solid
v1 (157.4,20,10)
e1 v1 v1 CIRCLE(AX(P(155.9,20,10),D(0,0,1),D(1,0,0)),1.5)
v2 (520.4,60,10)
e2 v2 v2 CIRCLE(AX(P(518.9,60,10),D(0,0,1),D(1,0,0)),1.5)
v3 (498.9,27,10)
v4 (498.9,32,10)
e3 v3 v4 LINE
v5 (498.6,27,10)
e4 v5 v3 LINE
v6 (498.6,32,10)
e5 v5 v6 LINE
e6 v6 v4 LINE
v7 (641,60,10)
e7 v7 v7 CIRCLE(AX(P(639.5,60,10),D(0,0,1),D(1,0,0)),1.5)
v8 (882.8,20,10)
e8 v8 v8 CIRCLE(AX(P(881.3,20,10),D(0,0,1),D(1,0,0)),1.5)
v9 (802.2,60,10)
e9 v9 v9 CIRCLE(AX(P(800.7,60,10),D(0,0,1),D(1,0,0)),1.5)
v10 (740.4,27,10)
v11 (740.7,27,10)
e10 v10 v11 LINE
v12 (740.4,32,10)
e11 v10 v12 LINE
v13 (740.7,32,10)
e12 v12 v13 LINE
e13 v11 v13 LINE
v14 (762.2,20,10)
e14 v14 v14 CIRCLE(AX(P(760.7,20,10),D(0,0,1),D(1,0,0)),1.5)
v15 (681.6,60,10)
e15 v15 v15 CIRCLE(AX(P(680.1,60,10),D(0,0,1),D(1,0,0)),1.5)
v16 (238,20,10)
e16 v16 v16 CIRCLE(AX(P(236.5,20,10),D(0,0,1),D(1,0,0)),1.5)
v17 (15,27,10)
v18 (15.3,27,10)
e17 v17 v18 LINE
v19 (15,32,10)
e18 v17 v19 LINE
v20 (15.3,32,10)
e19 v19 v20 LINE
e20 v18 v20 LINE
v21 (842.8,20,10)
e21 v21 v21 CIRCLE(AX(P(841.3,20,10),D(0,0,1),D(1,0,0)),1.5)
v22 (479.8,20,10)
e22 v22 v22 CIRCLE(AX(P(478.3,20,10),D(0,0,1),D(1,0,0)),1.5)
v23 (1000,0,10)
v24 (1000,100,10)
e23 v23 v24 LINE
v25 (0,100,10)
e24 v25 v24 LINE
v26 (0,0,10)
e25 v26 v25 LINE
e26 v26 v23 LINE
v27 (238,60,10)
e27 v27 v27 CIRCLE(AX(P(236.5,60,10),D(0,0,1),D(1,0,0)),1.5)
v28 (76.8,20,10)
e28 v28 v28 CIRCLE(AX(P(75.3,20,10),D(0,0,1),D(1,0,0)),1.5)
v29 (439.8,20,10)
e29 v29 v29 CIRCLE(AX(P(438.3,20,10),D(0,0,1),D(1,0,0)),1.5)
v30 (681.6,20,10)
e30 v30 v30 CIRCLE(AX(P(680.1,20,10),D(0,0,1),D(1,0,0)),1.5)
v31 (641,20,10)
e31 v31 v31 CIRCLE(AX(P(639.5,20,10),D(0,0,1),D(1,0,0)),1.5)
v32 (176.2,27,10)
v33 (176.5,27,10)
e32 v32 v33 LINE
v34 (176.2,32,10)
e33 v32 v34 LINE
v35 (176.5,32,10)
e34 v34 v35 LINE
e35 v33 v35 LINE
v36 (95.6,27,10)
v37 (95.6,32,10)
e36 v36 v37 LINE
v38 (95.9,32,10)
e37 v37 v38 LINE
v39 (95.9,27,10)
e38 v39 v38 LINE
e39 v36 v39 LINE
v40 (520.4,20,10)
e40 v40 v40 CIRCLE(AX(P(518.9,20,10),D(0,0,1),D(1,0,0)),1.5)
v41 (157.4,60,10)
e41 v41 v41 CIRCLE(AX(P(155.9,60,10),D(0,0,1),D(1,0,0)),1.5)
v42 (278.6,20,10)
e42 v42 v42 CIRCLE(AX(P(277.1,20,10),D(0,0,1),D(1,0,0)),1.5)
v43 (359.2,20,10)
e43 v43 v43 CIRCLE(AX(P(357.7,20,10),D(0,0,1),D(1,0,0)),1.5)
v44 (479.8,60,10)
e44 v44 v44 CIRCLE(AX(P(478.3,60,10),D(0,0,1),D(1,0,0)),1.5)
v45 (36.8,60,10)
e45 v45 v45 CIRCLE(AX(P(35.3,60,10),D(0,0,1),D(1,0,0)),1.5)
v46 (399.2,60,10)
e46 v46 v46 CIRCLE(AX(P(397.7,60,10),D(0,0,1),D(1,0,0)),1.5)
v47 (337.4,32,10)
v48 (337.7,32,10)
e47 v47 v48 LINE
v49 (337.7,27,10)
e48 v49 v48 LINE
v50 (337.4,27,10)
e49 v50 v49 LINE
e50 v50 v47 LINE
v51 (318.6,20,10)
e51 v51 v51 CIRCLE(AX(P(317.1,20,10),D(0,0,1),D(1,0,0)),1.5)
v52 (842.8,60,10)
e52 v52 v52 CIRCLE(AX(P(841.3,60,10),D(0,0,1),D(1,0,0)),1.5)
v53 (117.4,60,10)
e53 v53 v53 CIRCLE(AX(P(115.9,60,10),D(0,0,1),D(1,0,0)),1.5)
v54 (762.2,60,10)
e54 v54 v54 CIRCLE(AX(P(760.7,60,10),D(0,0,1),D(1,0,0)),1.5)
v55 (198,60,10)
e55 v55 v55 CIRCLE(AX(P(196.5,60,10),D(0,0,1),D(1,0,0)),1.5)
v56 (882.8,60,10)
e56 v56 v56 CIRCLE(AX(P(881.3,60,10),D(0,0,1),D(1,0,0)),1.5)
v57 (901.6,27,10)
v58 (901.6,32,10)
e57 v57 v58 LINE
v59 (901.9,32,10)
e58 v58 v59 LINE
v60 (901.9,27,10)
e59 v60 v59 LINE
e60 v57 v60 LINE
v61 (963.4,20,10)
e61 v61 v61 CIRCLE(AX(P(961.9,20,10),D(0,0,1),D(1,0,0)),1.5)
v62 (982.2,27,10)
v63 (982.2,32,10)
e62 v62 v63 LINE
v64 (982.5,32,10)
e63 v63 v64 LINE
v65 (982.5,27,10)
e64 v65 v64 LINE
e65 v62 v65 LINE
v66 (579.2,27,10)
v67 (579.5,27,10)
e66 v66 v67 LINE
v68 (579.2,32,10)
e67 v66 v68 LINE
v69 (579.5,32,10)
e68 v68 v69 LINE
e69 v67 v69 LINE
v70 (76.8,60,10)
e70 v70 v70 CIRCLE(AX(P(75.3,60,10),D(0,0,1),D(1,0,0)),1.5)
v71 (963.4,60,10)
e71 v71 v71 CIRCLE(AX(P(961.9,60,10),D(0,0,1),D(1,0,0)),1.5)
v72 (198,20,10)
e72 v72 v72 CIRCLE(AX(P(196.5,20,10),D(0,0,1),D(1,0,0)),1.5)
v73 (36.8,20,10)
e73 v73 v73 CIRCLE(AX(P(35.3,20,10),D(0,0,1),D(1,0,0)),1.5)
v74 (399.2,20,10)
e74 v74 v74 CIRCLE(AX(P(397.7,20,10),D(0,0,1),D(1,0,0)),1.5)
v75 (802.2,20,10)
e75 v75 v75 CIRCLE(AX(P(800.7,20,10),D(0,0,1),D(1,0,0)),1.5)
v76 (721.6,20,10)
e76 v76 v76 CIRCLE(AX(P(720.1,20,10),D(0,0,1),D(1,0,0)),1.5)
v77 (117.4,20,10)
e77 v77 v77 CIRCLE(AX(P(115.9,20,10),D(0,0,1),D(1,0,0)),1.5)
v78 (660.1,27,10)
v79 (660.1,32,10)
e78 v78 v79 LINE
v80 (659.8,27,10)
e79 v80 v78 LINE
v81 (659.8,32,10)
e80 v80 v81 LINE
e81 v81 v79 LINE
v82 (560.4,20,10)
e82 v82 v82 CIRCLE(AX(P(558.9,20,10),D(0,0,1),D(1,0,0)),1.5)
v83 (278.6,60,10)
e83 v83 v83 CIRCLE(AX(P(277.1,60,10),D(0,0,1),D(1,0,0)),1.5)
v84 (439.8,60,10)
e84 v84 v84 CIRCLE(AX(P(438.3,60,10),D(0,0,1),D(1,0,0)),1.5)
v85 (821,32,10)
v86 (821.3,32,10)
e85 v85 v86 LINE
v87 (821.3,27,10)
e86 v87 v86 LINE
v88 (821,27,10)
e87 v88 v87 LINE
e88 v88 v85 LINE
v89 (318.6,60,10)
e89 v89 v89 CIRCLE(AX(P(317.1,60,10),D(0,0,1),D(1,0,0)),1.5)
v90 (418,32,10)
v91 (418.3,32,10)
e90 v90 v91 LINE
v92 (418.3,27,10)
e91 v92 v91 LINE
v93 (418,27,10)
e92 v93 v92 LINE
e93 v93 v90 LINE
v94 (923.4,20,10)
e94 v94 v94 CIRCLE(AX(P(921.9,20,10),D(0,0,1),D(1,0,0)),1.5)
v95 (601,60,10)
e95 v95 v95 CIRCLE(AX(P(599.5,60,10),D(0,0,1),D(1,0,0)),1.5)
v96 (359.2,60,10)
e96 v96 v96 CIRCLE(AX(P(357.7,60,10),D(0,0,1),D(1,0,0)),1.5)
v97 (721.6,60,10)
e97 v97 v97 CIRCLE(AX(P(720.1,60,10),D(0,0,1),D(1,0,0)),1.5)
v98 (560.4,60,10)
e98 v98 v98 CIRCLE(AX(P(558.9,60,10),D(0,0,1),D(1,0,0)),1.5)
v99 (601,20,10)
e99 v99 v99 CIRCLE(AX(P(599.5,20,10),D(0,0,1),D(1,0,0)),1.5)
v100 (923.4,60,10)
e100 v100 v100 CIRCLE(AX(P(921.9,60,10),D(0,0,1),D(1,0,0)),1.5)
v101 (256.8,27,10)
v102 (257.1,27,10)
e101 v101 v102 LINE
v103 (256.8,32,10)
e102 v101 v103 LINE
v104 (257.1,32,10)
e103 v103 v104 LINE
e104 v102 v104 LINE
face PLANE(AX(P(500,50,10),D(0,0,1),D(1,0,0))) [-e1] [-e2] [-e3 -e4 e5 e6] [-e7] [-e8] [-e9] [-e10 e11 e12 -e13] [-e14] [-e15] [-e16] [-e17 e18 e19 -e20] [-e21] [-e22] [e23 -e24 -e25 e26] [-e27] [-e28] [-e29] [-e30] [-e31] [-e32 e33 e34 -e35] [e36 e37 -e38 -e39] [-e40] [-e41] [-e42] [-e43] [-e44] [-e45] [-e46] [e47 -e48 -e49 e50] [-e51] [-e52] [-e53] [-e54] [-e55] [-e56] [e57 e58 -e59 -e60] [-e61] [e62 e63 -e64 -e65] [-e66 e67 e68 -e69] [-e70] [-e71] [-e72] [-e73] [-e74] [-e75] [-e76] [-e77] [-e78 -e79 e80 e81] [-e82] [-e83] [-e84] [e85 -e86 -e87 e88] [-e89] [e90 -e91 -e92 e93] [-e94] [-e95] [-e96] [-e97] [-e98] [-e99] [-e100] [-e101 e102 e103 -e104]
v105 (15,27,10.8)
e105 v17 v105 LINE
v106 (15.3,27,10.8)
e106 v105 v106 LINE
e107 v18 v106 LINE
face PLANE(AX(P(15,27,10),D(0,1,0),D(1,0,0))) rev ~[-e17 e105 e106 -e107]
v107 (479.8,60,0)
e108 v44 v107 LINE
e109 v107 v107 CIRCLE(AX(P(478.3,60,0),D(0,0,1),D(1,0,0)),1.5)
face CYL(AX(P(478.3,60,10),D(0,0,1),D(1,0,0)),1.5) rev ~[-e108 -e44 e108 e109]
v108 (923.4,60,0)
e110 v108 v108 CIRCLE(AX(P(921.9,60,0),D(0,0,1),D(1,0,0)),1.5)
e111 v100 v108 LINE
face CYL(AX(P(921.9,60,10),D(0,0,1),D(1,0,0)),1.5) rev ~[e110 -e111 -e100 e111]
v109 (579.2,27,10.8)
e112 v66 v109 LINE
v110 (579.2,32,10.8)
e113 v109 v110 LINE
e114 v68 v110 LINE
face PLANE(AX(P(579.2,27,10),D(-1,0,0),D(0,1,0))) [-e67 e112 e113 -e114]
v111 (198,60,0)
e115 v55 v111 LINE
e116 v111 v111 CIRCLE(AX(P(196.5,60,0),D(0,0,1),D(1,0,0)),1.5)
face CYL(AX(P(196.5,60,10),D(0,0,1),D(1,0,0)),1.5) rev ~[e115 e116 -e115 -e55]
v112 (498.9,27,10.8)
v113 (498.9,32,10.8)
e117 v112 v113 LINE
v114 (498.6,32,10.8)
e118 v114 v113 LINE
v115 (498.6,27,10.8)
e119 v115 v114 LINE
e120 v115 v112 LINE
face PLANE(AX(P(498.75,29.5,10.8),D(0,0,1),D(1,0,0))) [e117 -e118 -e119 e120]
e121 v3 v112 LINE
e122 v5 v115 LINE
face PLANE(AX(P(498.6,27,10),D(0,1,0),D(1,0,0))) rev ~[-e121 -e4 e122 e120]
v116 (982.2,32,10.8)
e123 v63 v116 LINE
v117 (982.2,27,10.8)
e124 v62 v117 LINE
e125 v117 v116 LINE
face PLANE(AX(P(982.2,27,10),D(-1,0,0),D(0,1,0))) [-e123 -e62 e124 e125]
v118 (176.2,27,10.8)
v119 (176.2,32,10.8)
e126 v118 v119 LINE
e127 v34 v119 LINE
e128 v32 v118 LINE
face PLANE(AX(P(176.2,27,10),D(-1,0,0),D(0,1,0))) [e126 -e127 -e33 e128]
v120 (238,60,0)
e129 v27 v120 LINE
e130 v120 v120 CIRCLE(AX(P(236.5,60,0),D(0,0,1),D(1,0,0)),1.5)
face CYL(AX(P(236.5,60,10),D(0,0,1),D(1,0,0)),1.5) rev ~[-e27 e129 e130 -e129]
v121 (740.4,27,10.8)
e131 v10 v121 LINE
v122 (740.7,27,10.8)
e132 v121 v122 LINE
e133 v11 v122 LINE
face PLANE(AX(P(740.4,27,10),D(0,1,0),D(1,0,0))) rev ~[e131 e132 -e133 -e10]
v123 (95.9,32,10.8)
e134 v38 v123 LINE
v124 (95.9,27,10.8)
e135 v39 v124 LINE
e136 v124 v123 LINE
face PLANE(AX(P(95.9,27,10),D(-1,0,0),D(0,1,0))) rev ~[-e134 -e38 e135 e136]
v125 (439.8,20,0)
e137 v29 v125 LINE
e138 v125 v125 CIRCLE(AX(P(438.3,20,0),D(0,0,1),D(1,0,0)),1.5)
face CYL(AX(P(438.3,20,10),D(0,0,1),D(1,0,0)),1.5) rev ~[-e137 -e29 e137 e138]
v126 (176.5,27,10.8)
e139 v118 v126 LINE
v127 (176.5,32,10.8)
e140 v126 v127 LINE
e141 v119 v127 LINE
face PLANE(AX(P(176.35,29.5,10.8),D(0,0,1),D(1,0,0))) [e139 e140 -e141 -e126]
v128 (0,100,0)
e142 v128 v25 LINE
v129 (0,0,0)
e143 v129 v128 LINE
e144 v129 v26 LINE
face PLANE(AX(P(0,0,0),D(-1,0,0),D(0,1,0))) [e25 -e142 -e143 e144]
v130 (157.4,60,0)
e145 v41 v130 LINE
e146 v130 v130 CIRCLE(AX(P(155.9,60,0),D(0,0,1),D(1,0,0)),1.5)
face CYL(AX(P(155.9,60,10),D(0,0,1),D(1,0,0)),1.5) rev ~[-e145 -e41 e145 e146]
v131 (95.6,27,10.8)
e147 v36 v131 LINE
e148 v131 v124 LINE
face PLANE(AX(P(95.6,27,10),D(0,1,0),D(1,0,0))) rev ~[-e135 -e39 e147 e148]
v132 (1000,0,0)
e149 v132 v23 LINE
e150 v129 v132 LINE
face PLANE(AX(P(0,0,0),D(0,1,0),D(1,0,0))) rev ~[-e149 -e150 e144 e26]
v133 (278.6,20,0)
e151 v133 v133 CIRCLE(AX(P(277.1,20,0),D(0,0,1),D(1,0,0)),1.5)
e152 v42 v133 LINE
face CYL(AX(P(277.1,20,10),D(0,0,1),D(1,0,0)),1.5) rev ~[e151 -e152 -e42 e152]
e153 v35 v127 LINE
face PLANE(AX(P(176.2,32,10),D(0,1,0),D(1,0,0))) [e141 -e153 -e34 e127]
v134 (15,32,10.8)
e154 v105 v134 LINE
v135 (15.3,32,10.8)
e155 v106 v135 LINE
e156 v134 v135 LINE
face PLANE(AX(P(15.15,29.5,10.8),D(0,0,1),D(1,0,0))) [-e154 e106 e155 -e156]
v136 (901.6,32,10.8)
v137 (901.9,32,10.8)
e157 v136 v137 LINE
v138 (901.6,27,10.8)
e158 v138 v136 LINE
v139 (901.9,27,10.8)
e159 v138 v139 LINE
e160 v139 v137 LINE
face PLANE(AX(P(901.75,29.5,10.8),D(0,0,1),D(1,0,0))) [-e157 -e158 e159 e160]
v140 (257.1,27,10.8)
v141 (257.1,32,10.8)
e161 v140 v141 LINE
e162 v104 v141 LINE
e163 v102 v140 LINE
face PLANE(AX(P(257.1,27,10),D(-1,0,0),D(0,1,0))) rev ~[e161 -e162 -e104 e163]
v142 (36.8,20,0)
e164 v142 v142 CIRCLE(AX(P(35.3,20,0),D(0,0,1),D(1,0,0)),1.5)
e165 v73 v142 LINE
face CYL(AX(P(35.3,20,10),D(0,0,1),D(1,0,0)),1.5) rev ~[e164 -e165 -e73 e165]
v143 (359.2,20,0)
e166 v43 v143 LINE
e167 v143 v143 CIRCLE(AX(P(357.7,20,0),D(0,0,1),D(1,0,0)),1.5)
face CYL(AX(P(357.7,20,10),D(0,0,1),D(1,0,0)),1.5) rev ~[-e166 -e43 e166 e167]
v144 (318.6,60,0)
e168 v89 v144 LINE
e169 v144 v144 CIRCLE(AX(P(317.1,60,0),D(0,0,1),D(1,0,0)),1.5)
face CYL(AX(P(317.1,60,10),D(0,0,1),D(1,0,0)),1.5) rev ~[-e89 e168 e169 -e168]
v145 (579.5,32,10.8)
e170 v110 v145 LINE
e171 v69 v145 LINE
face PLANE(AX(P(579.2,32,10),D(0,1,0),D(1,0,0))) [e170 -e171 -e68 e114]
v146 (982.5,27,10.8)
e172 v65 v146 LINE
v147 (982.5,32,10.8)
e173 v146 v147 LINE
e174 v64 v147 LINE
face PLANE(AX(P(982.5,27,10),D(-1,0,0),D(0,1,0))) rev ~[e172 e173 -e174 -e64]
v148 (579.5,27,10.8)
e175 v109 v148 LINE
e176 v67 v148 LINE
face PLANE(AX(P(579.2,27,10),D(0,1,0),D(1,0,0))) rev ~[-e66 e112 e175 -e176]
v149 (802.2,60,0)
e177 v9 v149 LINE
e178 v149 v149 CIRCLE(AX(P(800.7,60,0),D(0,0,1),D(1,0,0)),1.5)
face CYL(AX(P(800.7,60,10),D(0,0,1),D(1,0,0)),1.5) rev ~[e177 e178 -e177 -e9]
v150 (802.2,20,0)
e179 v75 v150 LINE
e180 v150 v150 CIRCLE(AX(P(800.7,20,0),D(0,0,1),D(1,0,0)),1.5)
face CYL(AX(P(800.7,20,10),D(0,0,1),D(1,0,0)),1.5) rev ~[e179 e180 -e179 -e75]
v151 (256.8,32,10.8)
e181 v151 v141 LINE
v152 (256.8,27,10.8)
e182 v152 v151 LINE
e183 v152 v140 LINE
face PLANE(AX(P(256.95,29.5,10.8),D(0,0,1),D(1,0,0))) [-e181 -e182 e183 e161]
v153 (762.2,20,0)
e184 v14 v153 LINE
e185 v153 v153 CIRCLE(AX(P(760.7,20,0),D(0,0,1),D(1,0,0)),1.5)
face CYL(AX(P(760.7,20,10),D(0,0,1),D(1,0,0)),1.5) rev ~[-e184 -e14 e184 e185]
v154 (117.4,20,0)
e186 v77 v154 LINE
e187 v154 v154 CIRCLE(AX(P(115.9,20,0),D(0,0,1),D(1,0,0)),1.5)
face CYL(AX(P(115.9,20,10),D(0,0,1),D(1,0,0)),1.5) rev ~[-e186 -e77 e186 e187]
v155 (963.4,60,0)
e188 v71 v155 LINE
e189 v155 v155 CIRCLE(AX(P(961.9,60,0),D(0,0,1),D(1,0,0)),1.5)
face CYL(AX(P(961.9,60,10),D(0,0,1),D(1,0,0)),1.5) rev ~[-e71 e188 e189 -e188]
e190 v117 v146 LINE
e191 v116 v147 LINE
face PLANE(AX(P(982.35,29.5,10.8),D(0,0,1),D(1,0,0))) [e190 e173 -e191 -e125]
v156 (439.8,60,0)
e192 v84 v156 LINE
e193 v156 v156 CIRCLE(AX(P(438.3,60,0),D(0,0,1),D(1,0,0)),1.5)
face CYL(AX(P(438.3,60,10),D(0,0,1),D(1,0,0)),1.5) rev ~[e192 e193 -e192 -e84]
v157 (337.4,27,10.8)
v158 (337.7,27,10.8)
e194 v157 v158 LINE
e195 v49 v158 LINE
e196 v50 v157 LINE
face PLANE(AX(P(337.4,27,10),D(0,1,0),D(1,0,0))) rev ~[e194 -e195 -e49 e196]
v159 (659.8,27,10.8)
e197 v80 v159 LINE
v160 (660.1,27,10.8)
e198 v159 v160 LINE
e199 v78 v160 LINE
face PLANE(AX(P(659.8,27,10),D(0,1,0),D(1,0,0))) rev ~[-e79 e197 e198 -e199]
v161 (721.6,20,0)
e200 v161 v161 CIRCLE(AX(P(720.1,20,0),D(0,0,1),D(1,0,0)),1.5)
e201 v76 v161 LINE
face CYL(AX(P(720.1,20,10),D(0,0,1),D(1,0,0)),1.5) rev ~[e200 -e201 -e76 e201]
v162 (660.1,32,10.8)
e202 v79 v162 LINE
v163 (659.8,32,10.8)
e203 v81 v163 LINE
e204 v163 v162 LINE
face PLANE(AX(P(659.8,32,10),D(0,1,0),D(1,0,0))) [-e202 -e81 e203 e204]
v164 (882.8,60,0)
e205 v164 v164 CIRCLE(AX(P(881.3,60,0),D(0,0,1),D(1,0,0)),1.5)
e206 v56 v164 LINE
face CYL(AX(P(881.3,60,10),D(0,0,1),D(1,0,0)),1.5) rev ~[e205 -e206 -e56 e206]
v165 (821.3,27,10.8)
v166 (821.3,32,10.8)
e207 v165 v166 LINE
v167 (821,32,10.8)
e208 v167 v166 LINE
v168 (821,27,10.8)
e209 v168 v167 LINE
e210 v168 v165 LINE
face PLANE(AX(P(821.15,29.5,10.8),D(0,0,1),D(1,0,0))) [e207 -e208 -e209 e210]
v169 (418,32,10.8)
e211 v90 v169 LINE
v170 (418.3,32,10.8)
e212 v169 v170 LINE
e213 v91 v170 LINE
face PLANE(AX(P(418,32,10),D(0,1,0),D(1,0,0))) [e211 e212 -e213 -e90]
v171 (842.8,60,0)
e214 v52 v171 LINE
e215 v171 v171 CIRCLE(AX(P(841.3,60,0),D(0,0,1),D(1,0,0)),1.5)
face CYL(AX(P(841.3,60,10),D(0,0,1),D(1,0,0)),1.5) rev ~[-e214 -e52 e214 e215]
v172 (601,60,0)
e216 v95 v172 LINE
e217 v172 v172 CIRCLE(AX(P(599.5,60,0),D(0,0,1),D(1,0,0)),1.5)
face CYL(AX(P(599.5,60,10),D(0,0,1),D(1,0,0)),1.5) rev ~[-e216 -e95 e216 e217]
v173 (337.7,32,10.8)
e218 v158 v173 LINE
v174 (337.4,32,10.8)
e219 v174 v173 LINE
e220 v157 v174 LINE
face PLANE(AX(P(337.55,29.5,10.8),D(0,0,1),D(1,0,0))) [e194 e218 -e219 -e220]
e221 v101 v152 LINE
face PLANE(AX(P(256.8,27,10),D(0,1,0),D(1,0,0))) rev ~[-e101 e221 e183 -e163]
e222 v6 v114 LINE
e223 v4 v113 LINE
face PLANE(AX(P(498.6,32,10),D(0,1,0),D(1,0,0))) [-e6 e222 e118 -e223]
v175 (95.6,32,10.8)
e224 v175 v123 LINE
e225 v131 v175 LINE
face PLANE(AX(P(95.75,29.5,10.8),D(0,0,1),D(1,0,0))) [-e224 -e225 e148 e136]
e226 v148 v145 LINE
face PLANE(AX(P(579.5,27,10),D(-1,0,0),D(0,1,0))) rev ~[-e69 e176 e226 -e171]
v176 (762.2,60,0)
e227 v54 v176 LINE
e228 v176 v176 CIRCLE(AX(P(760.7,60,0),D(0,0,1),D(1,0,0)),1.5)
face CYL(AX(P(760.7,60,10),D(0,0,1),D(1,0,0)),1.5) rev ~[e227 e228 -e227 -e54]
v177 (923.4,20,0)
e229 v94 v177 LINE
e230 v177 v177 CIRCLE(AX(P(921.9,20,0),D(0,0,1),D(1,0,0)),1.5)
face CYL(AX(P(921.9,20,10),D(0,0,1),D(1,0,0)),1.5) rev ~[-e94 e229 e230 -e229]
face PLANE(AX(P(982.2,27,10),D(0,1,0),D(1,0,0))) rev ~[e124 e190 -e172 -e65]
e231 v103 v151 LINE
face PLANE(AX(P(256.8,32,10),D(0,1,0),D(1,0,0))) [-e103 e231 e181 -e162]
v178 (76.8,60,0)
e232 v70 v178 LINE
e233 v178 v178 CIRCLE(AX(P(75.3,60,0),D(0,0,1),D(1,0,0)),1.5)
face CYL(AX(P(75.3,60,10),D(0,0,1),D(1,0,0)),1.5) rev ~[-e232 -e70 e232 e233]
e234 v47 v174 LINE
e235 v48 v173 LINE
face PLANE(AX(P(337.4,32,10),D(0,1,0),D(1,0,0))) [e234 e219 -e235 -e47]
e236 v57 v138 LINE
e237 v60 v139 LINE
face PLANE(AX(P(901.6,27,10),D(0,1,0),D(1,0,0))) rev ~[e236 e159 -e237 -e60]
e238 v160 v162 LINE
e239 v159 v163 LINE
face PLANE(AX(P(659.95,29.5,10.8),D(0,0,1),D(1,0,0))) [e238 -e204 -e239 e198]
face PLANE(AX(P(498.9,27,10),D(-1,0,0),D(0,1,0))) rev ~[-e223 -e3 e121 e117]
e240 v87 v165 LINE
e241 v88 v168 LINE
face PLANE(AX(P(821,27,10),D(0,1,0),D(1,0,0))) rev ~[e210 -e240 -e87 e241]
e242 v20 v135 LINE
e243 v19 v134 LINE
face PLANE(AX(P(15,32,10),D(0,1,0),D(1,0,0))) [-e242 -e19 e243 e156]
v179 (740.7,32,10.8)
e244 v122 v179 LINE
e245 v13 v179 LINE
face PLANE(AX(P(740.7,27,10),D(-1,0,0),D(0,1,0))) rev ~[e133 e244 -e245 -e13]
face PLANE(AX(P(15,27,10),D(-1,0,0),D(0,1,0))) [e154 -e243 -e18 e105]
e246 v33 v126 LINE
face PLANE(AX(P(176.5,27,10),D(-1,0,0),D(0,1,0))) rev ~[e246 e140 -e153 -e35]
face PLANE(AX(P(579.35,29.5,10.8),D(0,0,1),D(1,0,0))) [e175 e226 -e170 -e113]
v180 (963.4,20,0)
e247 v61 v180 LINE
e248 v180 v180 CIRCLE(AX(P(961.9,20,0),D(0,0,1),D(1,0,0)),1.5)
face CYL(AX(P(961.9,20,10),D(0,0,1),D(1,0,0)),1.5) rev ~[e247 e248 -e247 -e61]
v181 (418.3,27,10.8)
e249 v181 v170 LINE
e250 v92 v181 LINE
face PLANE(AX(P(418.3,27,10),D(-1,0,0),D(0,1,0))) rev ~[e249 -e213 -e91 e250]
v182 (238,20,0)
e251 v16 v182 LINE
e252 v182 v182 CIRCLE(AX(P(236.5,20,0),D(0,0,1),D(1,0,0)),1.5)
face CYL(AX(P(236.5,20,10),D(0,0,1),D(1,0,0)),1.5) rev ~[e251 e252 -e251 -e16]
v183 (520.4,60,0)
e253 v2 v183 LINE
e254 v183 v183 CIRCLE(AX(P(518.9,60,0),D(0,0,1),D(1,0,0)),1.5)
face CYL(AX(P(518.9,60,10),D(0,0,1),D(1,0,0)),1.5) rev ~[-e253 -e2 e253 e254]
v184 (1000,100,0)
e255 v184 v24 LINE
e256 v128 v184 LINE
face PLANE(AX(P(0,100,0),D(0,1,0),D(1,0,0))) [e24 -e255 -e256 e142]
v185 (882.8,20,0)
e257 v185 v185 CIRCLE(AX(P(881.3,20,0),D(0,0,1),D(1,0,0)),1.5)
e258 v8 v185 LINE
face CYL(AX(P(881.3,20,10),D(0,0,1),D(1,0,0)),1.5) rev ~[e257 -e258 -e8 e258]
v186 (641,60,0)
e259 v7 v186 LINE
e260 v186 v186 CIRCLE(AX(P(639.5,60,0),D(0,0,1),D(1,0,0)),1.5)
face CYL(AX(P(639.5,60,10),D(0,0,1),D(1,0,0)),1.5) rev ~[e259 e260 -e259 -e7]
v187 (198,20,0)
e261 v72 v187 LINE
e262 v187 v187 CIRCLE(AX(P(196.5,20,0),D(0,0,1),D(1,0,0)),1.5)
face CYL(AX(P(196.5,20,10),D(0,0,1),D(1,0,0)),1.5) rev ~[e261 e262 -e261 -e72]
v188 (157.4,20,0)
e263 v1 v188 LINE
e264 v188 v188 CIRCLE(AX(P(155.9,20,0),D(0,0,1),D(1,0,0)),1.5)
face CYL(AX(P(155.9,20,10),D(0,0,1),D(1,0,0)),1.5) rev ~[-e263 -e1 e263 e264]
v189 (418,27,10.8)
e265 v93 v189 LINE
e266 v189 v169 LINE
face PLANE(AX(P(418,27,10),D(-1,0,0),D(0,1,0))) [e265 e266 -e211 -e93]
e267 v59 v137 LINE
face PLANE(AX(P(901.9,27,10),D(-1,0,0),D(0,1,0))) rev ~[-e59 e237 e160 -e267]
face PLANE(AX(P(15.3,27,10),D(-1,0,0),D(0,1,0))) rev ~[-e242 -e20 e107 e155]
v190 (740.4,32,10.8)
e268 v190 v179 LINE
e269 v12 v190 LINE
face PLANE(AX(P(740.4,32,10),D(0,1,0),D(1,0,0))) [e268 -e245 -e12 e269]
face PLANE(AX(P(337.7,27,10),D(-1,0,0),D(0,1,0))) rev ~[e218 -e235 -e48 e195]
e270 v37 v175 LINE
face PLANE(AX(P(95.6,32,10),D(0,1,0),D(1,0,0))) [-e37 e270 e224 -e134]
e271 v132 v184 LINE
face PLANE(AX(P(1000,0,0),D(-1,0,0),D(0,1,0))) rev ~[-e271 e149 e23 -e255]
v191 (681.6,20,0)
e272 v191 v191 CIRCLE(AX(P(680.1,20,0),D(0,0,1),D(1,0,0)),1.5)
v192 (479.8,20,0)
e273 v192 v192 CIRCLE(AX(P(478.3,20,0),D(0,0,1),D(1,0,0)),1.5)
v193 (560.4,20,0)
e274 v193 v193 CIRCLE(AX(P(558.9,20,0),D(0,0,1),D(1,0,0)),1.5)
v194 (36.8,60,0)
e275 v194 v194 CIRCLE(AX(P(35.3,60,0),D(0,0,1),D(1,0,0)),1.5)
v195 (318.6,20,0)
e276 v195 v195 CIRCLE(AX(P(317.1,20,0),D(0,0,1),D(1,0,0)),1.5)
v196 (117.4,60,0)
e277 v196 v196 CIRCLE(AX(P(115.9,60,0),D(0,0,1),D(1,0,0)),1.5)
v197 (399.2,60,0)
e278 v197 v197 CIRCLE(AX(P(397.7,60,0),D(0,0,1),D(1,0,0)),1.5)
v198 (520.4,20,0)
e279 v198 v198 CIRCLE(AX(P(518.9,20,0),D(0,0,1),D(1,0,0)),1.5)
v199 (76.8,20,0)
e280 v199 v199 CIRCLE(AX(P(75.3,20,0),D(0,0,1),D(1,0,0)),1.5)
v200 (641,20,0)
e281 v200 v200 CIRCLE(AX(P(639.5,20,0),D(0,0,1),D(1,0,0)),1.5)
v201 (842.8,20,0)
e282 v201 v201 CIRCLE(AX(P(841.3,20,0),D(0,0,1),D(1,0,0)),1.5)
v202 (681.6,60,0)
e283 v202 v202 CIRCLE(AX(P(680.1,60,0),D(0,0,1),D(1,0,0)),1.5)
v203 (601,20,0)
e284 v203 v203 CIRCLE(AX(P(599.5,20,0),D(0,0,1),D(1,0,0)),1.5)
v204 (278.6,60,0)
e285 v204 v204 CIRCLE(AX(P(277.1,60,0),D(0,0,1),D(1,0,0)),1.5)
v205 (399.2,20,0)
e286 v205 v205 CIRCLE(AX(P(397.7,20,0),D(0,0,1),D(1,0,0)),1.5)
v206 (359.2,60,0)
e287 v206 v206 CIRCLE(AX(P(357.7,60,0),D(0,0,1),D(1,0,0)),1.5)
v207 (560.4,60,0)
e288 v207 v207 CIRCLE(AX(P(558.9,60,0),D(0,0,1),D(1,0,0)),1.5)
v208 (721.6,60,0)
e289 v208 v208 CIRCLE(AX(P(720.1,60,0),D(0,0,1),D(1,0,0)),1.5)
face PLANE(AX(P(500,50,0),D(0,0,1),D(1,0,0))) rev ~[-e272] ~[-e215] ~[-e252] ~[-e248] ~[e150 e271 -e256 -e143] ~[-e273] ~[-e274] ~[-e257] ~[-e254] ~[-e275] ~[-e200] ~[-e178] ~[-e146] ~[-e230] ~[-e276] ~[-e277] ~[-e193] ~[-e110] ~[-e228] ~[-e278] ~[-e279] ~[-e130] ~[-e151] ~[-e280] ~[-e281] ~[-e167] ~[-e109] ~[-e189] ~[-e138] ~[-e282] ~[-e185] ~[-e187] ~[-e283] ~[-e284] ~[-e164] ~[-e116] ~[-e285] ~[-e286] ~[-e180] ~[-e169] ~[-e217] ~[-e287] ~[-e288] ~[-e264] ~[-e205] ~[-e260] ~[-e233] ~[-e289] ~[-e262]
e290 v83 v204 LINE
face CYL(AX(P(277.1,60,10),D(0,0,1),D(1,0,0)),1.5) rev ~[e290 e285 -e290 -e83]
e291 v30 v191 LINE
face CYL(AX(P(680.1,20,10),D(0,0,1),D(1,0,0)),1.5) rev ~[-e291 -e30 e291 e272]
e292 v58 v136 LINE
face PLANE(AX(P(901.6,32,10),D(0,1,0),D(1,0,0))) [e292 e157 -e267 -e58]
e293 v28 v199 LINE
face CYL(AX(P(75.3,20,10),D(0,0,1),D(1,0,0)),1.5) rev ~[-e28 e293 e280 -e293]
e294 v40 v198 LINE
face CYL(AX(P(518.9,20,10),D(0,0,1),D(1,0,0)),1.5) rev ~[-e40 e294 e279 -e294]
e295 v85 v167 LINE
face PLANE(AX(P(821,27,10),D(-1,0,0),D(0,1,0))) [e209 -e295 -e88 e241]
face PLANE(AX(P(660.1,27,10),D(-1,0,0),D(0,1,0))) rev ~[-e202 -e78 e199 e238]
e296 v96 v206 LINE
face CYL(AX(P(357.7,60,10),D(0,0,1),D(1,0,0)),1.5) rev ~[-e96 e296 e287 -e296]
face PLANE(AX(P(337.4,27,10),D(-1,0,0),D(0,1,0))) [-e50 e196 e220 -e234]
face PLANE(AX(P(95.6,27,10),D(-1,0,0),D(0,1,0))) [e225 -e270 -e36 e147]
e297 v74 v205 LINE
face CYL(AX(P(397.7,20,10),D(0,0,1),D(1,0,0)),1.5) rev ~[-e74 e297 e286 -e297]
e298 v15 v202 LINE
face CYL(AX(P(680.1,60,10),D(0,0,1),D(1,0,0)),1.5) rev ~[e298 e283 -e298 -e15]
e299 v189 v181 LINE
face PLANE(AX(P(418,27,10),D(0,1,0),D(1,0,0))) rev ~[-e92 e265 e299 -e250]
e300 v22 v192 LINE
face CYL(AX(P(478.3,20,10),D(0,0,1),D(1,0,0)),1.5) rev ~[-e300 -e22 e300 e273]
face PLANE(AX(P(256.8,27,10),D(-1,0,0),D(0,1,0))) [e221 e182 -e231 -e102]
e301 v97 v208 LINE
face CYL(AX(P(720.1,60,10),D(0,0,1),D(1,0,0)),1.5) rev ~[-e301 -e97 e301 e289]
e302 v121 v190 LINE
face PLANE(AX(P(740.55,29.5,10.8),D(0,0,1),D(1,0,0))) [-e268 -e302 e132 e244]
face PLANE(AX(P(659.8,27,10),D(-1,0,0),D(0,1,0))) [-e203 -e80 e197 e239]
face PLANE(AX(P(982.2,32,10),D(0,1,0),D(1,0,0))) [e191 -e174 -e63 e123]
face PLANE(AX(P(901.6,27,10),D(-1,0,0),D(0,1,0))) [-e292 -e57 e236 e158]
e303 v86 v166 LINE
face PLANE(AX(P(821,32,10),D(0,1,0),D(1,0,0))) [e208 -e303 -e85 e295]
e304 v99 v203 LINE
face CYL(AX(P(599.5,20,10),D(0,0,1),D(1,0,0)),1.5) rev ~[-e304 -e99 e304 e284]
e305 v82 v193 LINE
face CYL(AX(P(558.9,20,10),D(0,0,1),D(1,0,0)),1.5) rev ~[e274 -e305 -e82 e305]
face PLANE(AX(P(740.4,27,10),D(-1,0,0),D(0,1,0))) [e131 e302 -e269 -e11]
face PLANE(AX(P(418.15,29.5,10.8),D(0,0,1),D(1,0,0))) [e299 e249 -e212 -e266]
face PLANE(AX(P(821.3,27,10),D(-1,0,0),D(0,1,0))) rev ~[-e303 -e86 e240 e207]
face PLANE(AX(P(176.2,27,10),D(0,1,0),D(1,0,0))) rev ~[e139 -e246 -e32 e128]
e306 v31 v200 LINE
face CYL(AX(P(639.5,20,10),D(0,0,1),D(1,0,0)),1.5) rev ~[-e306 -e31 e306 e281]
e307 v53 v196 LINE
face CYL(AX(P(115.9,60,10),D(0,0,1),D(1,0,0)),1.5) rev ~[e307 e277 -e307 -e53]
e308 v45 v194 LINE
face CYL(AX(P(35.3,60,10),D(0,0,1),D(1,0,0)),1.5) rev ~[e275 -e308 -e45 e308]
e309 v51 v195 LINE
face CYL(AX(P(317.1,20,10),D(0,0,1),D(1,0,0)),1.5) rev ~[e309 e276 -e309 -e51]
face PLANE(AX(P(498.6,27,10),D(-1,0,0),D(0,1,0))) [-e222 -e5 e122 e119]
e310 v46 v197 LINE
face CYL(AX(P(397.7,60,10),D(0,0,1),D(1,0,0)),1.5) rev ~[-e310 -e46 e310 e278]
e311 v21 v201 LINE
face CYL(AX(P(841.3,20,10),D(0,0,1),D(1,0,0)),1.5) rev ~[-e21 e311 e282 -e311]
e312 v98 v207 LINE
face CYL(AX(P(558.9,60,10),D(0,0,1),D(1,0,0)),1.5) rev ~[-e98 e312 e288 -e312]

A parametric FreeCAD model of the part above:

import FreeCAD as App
import Part
import Sketcher

doc = App.newDocument("Part")
body = doc.addObject("PartDesign::Body", "Body")

sketch1 = body.newObject("Sketcher::SketchObject", "Sketch")
sketch1.AttachmentSupport = (doc.getObject("XY_Plane"), [""])
sketch1.MapMode = "FlatFace"
sketch1.addGeometry([
    Part.LineSegment(App.Vector(0, 100, 0), App.Vector(0, 0, 0)),
    Part.LineSegment(App.Vector(0, 0, 0), App.Vector(1000, 0, 0)),
    Part.LineSegment(App.Vector(1000, 0, 0), App.Vector(1000, 100, 0)),
    Part.LineSegment(App.Vector(1000, 100, 0), App.Vector(0, 100, 0)),
], False)
sketch1.addConstraint([
    Sketcher.Constraint("Coincident", 0, 2, 1, 1),
    Sketcher.Constraint("Coincident", 1, 2, 2, 1),
    Sketcher.Constraint("Coincident", 2, 2, 3, 1),
    Sketcher.Constraint("Coincident", 3, 2, 0, 1),
    Sketcher.Constraint("Vertical", 0),
    Sketcher.Constraint("Horizontal", 1),
    Sketcher.Constraint("Vertical", 2),
    Sketcher.Constraint("Horizontal", 3),
    Sketcher.Constraint("Coincident", 0, 2, -1, 1),
    Sketcher.Constraint("DistanceX", 1, 1, 1, 2, 1000.0),
    Sketcher.Constraint("DistanceY", 0, 2, 0, 1, 100.0),
])
pad1 = body.newObject("PartDesign::Pad", "Pad")
pad1.Profile = sketch1
pad1.Length = 10

sketch2 = body.newObject("Sketcher::SketchObject", "Sketch001")
sketch2.AttachmentSupport = (doc.getObject("XY_Plane"), [""])
sketch2.MapMode = "FlatFace"
sketch2.AttachmentOffset = App.Placement(App.Vector(0, 0, 10), App.Rotation())
sketch2.addGeometry([
    Part.LineSegment(App.Vector(15, 32, 0), App.Vector(15, 27, 0)),
    Part.LineSegment(App.Vector(15, 27, 0), App.Vector(15.3, 27, 0)),
    Part.LineSegment(App.Vector(15.3, 27, 0), App.Vector(15.3, 32, 0)),
    Part.LineSegment(App.Vector(15.3, 32, 0), App.Vector(15, 32, 0)),
    Part.LineSegment(App.Vector(95.6, 32, 0), App.Vector(95.6, 27, 0)),
    Part.LineSegment(App.Vector(95.6, 27, 0), App.Vector(95.9, 27, 0)),
    Part.LineSegment(App.Vector(95.9, 27, 0), App.Vector(95.9, 32, 0)),
    Part.LineSegment(App.Vector(95.9, 32, 0), App.Vector(95.6, 32, 0)),
    Part.LineSegment(App.Vector(176.2, 32, 0), App.Vector(176.2, 27, 0)),
    Part.LineSegment(App.Vector(176.2, 27, 0), App.Vector(176.5, 27, 0)),
    Part.LineSegment(App.Vector(176.5, 27, 0), App.Vector(176.5, 32, 0)),
    Part.LineSegment(App.Vector(176.5, 32, 0), App.Vector(176.2, 32, 0)),
    Part.LineSegment(App.Vector(256.8, 32, 0), App.Vector(256.8, 27, 0)),
    Part.LineSegment(App.Vector(256.8, 27, 0), App.Vector(257.1, 27, 0)),
    Part.LineSegment(App.Vector(257.1, 27, 0), App.Vector(257.1, 32, 0)),
    Part.LineSegment(App.Vector(257.1, 32, 0), App.Vector(256.8, 32, 0)),
    Part.LineSegment(App.Vector(337.4, 32, 0), App.Vector(337.4, 27, 0)),
    Part.LineSegment(App.Vector(337.4, 27, 0), App.Vector(337.7, 27, 0)),
    Part.LineSegment(App.Vector(337.7, 27, 0), App.Vector(337.7, 32, 0)),
    Part.LineSegment(App.Vector(337.7, 32, 0), App.Vector(337.4, 32, 0)),
    Part.LineSegment(App.Vector(418, 32, 0), App.Vector(418, 27, 0)),
    Part.LineSegment(App.Vector(418, 27, 0), App.Vector(418.3, 27, 0)),
    Part.LineSegment(App.Vector(418.3, 27, 0), App.Vector(418.3, 32, 0)),
    Part.LineSegment(App.Vector(418.3, 32, 0), App.Vector(418, 32, 0)),
    Part.LineSegment(App.Vector(498.6, 32, 0), App.Vector(498.6, 27, 0)),
    Part.LineSegment(App.Vector(498.6, 27, 0), App.Vector(498.9, 27, 0)),
    Part.LineSegment(App.Vector(498.9, 27, 0), App.Vector(498.9, 32, 0)),
    Part.LineSegment(App.Vector(498.9, 32, 0), App.Vector(498.6, 32, 0)),
    Part.LineSegment(App.Vector(579.2, 32, 0), App.Vector(579.2, 27, 0)),
    Part.LineSegment(App.Vector(579.2, 27, 0), App.Vector(579.5, 27, 0)),
    Part.LineSegment(App.Vector(579.5, 27, 0), App.Vector(579.5, 32, 0)),
    Part.LineSegment(App.Vector(579.5, 32, 0), App.Vector(579.2, 32, 0)),
    Part.LineSegment(App.Vector(659.8, 32, 0), App.Vector(659.8, 27, 0)),
    Part.LineSegment(App.Vector(659.8, 27, 0), App.Vector(660.1, 27, 0)),
    Part.LineSegment(App.Vector(660.1, 27, 0), App.Vector(660.1, 32, 0)),
    Part.LineSegment(App.Vector(660.1, 32, 0), App.Vector(659.8, 32, 0)),
    Part.LineSegment(App.Vector(740.4, 32, 0), App.Vector(740.4, 27, 0)),
    Part.LineSegment(App.Vector(740.4, 27, 0), App.Vector(740.7, 27, 0)),
    Part.LineSegment(App.Vector(740.7, 27, 0), App.Vector(740.7, 32, 0)),
    Part.LineSegment(App.Vector(740.7, 32, 0), App.Vector(740.4, 32, 0)),
    Part.LineSegment(App.Vector(821, 32, 0), App.Vector(821, 27, 0)),
    Part.LineSegment(App.Vector(821, 27, 0), App.Vector(821.3, 27, 0)),
    Part.LineSegment(App.Vector(821.3, 27, 0), App.Vector(821.3, 32, 0)),
    Part.LineSegment(App.Vector(821.3, 32, 0), App.Vector(821, 32, 0)),
    Part.LineSegment(App.Vector(901.6, 32, 0), App.Vector(901.6, 27, 0)),
    Part.LineSegment(App.Vector(901.6, 27, 0), App.Vector(901.9, 27, 0)),
    Part.LineSegment(App.Vector(901.9, 27, 0), App.Vector(901.9, 32, 0)),
    Part.LineSegment(App.Vector(901.9, 32, 0), App.Vector(901.6, 32, 0)),
    Part.LineSegment(App.Vector(982.2, 32, 0), App.Vector(982.2, 27, 0)),
    Part.LineSegment(App.Vector(982.2, 27, 0), App.Vector(982.5, 27, 0)),
    Part.LineSegment(App.Vector(982.5, 27, 0), App.Vector(982.5, 32, 0)),
    Part.LineSegment(App.Vector(982.5, 32, 0), App.Vector(982.2, 32, 0)),
], False)
sketch2.addConstraint([
    Sketcher.Constraint("Coincident", 0, 2, 1, 1),
    Sketcher.Constraint("Coincident", 1, 2, 2, 1),
    Sketcher.Constraint("Coincident", 2, 2, 3, 1),
    Sketcher.Constraint("Coincident", 3, 2, 0, 1),
    Sketcher.Constraint("Coincident", 4, 2, 5, 1),
    Sketcher.Constraint("Coincident", 5, 2, 6, 1),
    Sketcher.Constraint("Coincident", 6, 2, 7, 1),
    Sketcher.Constraint("Coincident", 7, 2, 4, 1),
    Sketcher.Constraint("Coincident", 8, 2, 9, 1),
    Sketcher.Constraint("Coincident", 9, 2, 10, 1),
    Sketcher.Constraint("Coincident", 10, 2, 11, 1),
    Sketcher.Constraint("Coincident", 11, 2, 8, 1),
    Sketcher.Constraint("Coincident", 12, 2, 13, 1),
    Sketcher.Constraint("Coincident", 13, 2, 14, 1),
    Sketcher.Constraint("Coincident", 14, 2, 15, 1),
    Sketcher.Constraint("Coincident", 15, 2, 12, 1),
    Sketcher.Constraint("Coincident", 16, 2, 17, 1),
    Sketcher.Constraint("Coincident", 17, 2, 18, 1),
    Sketcher.Constraint("Coincident", 18, 2, 19, 1),
    Sketcher.Constraint("Coincident", 19, 2, 16, 1),
    Sketcher.Constraint("Coincident", 20, 2, 21, 1),
    Sketcher.Constraint("Coincident", 21, 2, 22, 1),
    Sketcher.Constraint("Coincident", 22, 2, 23, 1),
    Sketcher.Constraint("Coincident", 23, 2, 20, 1),
    Sketcher.Constraint("Coincident", 24, 2, 25, 1),
    Sketcher.Constraint("Coincident", 25, 2, 26, 1),
    Sketcher.Constraint("Coincident", 26, 2, 27, 1),
    Sketcher.Constraint("Coincident", 27, 2, 24, 1),
    Sketcher.Constraint("Coincident", 28, 2, 29, 1),
    Sketcher.Constraint("Coincident", 29, 2, 30, 1),
    Sketcher.Constraint("Coincident", 30, 2, 31, 1),
    Sketcher.Constraint("Coincident", 31, 2, 28, 1),
    Sketcher.Constraint("Coincident", 32, 2, 33, 1),
    Sketcher.Constraint("Coincident", 33, 2, 34, 1),
    Sketcher.Constraint("Coincident", 34, 2, 35, 1),
    Sketcher.Constraint("Coincident", 35, 2, 32, 1),
    Sketcher.Constraint("Coincident", 36, 2, 37, 1),
    Sketcher.Constraint("Coincident", 37, 2, 38, 1),
    Sketcher.Constraint("Coincident", 38, 2, 39, 1),
    Sketcher.Constraint("Coincident", 39, 2, 36, 1),
    Sketcher.Constraint("Coincident", 40, 2, 41, 1),
    Sketcher.Constraint("Coincident", 41, 2, 42, 1),
    Sketcher.Constraint("Coincident", 42, 2, 43, 1),
    Sketcher.Constraint("Coincident", 43, 2, 40, 1),
    Sketcher.Constraint("Coincident", 44, 2, 45, 1),
    Sketcher.Constraint("Coincident", 45, 2, 46, 1),
    Sketcher.Constraint("Coincident", 46, 2, 47, 1),
    Sketcher.Constraint("Coincident", 47, 2, 44, 1),
    Sketcher.Constraint("Coincident", 48, 2, 49, 1),
    Sketcher.Constraint("Coincident", 49, 2, 50, 1),
    Sketcher.Constraint("Coincident", 50, 2, 51, 1),
    Sketcher.Constraint("Coincident", 51, 2, 48, 1),
    Sketcher.Constraint("Vertical", 0),
    Sketcher.Constraint("Horizontal", 1),
    Sketcher.Constraint("Vertical", 2),
    Sketcher.Constraint("Horizontal", 3),
    Sketcher.Constraint("Vertical", 4),
    Sketcher.Constraint("Horizontal", 5),
    Sketcher.Constraint("Vertical", 6),
    Sketcher.Constraint("Horizontal", 7),
    Sketcher.Constraint("Vertical", 8),
    Sketcher.Constraint("Horizontal", 9),
    Sketcher.Constraint("Vertical", 10),
    Sketcher.Constraint("Horizontal", 11),
    Sketcher.Constraint("Vertical", 12),
    Sketcher.Constraint("Horizontal", 13),
    Sketcher.Constraint("Vertical", 14),
    Sketcher.Constraint("Horizontal", 15),
    Sketcher.Constraint("Vertical", 16),
    Sketcher.Constraint("Horizontal", 17),
    Sketcher.Constraint("Vertical", 18),
    Sketcher.Constraint("Horizontal", 19),
    Sketcher.Constraint("Vertical", 20),
    Sketcher.Constraint("Horizontal", 21),
    Sketcher.Constraint("Vertical", 22),
    Sketcher.Constraint("Horizontal", 23),
    Sketcher.Constraint("Vertical", 24),
    Sketcher.Constraint("Horizontal", 25),
    Sketcher.Constraint("Vertical", 26),
    Sketcher.Constraint("Horizontal", 27),
    Sketcher.Constraint("Vertical", 28),
    Sketcher.Constraint("Horizontal", 29),
    Sketcher.Constraint("Vertical", 30),
    Sketcher.Constraint("Horizontal", 31),
    Sketcher.Constraint("Vertical", 32),
    Sketcher.Constraint("Horizontal", 33),
    Sketcher.Constraint("Vertical", 34),
    Sketcher.Constraint("Horizontal", 35),
    Sketcher.Constraint("Vertical", 36),
    Sketcher.Constraint("Horizontal", 37),
    Sketcher.Constraint("Vertical", 38),
    Sketcher.Constraint("Horizontal", 39),
    Sketcher.Constraint("Vertical", 40),
    Sketcher.Constraint("Horizontal", 41),
    Sketcher.Constraint("Vertical", 42),
    Sketcher.Constraint("Horizontal", 43),
    Sketcher.Constraint("Vertical", 44),
    Sketcher.Constraint("Horizontal", 45),
    Sketcher.Constraint("Vertical", 46),
    Sketcher.Constraint("Horizontal", 47),
    Sketcher.Constraint("Vertical", 48),
    Sketcher.Constraint("Horizontal", 49),
    Sketcher.Constraint("Vertical", 50),
    Sketcher.Constraint("Horizontal", 51),
    Sketcher.Constraint("Horizontal", 1, 2, 4, 2),
    Sketcher.Constraint("Horizontal", 3, 2, 6, 2),
    Sketcher.Constraint("Horizontal", 5, 2, 8, 2),
    Sketcher.Constraint("Horizontal", 7, 2, 10, 2),
    Sketcher.Constraint("Horizontal", 9, 2, 12, 2),
    Sketcher.Constraint("Horizontal", 11, 2, 14, 2),
    Sketcher.Constraint("Horizontal", 13, 2, 16, 2),
    Sketcher.Constraint("Horizontal", 15, 2, 18, 2),
    Sketcher.Constraint("Horizontal", 17, 2, 20, 2),
    Sketcher.Constraint("Horizontal", 19, 2, 22, 2),
    Sketcher.Constraint("Horizontal", 21, 2, 24, 2),
    Sketcher.Constraint("Horizontal", 23, 2, 26, 2),
    Sketcher.Constraint("Horizontal", 25, 2, 28, 2),
    Sketcher.Constraint("Horizontal", 27, 2, 30, 2),
    Sketcher.Constraint("Horizontal", 29, 2, 32, 2),
    Sketcher.Constraint("Horizontal", 31, 2, 34, 2),
    Sketcher.Constraint("Horizontal", 33, 2, 36, 2),
    Sketcher.Constraint("Horizontal", 35, 2, 38, 2),
    Sketcher.Constraint("Horizontal", 37, 2, 40, 2),
    Sketcher.Constraint("Horizontal", 39, 2, 42, 2),
    Sketcher.Constraint("Horizontal", 41, 2, 44, 2),
    Sketcher.Constraint("Horizontal", 43, 2, 46, 2),
    Sketcher.Constraint("Horizontal", 45, 2, 48, 2),
    Sketcher.Constraint("Horizontal", 47, 2, 50, 2),
    Sketcher.Constraint("Equal", 3, 5),
    Sketcher.Constraint("Equal", 7, 9),
    Sketcher.Constraint("Equal", 11, 13),
    Sketcher.Constraint("Equal", 15, 17),
    Sketcher.Constraint("Equal", 19, 21),
    Sketcher.Constraint("Equal", 23, 25),
    Sketcher.Constraint("Equal", 27, 29),
    Sketcher.Constraint("Equal", 31, 33),
    Sketcher.Constraint("Equal", 35, 37),
    Sketcher.Constraint("Equal", 39, 41),
    Sketcher.Constraint("Equal", 43, 45),
    Sketcher.Constraint("Equal", 47, 49),
    Sketcher.Constraint("DistanceY", 0, 2, 0, 1, 5.0),
    Sketcher.Constraint("DistanceX", 1, 1, 1, 2, 0.3),
    Sketcher.Constraint("DistanceX", -1, 1, 0, 2, 15.0),
    Sketcher.Constraint("DistanceY", -1, 1, 0, 2, 27.0),
    Sketcher.Constraint("DistanceX", -1, 1, 20, 2, 418.0),
    Sketcher.Constraint("DistanceX", -1, 1, 40, 2, 821.0),
    Sketcher.Constraint("DistanceX", -1, 1, 4, 2, 95.6),
    Sketcher.Constraint("DistanceX", -1, 1, 8, 2, 176.2),
    Sketcher.Constraint("DistanceX", -1, 1, 12, 2, 256.8),
    Sketcher.Constraint("DistanceX", -1, 1, 16, 2, 337.4),
    Sketcher.Constraint("DistanceX", -1, 1, 24, 2, 498.6),
    Sketcher.Constraint("DistanceX", -1, 1, 28, 2, 579.2),
    Sketcher.Constraint("DistanceX", -1, 1, 32, 2, 659.8),
    Sketcher.Constraint("DistanceX", -1, 1, 36, 2, 740.4),
    Sketcher.Constraint("DistanceX", -1, 1, 44, 2, 901.6),
    Sketcher.Constraint("DistanceX", -1, 1, 48, 2, 982.2),
])
pad2 = body.newObject("PartDesign::Pad", "Pad001")
pad2.Profile = sketch2
pad2.Length = 0.8

sketch3 = body.newObject("Sketcher::SketchObject", "Sketch002")
sketch3.AttachmentSupport = (doc.getObject("XY_Plane"), [""])
sketch3.MapMode = "FlatFace"
sketch3.AttachmentOffset = App.Placement(App.Vector(0, 0, 10), App.Rotation())
sketch3.addGeometry([
    Part.Circle(App.Vector(35.3, 20, 0), App.Vector(0, 0, 1), 1.5),
    Part.Circle(App.Vector(75.3, 20, 0), App.Vector(0, 0, 1), 1.5),
    Part.Circle(App.Vector(35.3, 60, 0), App.Vector(0, 0, 1), 1.5),
    Part.Circle(App.Vector(75.3, 60, 0), App.Vector(0, 0, 1), 1.5),
    Part.Circle(App.Vector(115.9, 20, 0), App.Vector(0, 0, 1), 1.5),
    Part.Circle(App.Vector(115.9, 60, 0), App.Vector(0, 0, 1), 1.5),
    Part.Circle(App.Vector(155.9, 60, 0), App.Vector(0, 0, 1), 1.5),
    Part.Circle(App.Vector(155.9, 20, 0), App.Vector(0, 0, 1), 1.5),
    Part.Circle(App.Vector(196.5, 20, 0), App.Vector(0, 0, 1), 1.5),
    Part.Circle(App.Vector(196.5, 60, 0), App.Vector(0, 0, 1), 1.5),
    Part.Circle(App.Vector(236.5, 60, 0), App.Vector(0, 0, 1), 1.5),
    Part.Circle(App.Vector(236.5, 20, 0), App.Vector(0, 0, 1), 1.5),
    Part.Circle(App.Vector(277.1, 20, 0), App.Vector(0, 0, 1), 1.5),
    Part.Circle(App.Vector(277.1, 60, 0), App.Vector(0, 0, 1), 1.5),
    Part.Circle(App.Vector(317.1, 60, 0), App.Vector(0, 0, 1), 1.5),
    Part.Circle(App.Vector(317.1, 20, 0), App.Vector(0, 0, 1), 1.5),
    Part.Circle(App.Vector(357.7, 20, 0), App.Vector(0, 0, 1), 1.5),
    Part.Circle(App.Vector(357.7, 60, 0), App.Vector(0, 0, 1), 1.5),
    Part.Circle(App.Vector(397.7, 60, 0), App.Vector(0, 0, 1), 1.5),
    Part.Circle(App.Vector(397.7, 20, 0), App.Vector(0, 0, 1), 1.5),
    Part.Circle(App.Vector(438.3, 20, 0), App.Vector(0, 0, 1), 1.5),
    Part.Circle(App.Vector(438.3, 60, 0), App.Vector(0, 0, 1), 1.5),
    Part.Circle(App.Vector(478.3, 60, 0), App.Vector(0, 0, 1), 1.5),
    Part.Circle(App.Vector(478.3, 20, 0), App.Vector(0, 0, 1), 1.5),
    Part.Circle(App.Vector(518.9, 20, 0), App.Vector(0, 0, 1), 1.5),
    Part.Circle(App.Vector(518.9, 60, 0), App.Vector(0, 0, 1), 1.5),
    Part.Circle(App.Vector(558.9, 60, 0), App.Vector(0, 0, 1), 1.5),
    Part.Circle(App.Vector(558.9, 20, 0), App.Vector(0, 0, 1), 1.5),
    Part.Circle(App.Vector(599.5, 20, 0), App.Vector(0, 0, 1), 1.5),
    Part.Circle(App.Vector(599.5, 60, 0), App.Vector(0, 0, 1), 1.5),
    Part.Circle(App.Vector(639.5, 60, 0), App.Vector(0, 0, 1), 1.5),
    Part.Circle(App.Vector(639.5, 20, 0), App.Vector(0, 0, 1), 1.5),
    Part.Circle(App.Vector(680.1, 20, 0), App.Vector(0, 0, 1), 1.5),
    Part.Circle(App.Vector(680.1, 60, 0), App.Vector(0, 0, 1), 1.5),
    Part.Circle(App.Vector(720.1, 60, 0), App.Vector(0, 0, 1), 1.5),
    Part.Circle(App.Vector(720.1, 20, 0), App.Vector(0, 0, 1), 1.5),
    Part.Circle(App.Vector(760.7, 20, 0), App.Vector(0, 0, 1), 1.5),
    Part.Circle(App.Vector(760.7, 60, 0), App.Vector(0, 0, 1), 1.5),
    Part.Circle(App.Vector(800.7, 60, 0), App.Vector(0, 0, 1), 1.5),
    Part.Circle(App.Vector(800.7, 20, 0), App.Vector(0, 0, 1), 1.5),
    Part.Circle(App.Vector(841.3, 20, 0), App.Vector(0, 0, 1), 1.5),
    Part.Circle(App.Vector(841.3, 60, 0), App.Vector(0, 0, 1), 1.5),
    Part.Circle(App.Vector(881.3, 60, 0), App.Vector(0, 0, 1), 1.5),
    Part.Circle(App.Vector(881.3, 20, 0), App.Vector(0, 0, 1), 1.5),
    Part.Circle(App.Vector(921.9, 20, 0), App.Vector(0, 0, 1), 1.5),
    Part.Circle(App.Vector(921.9, 60, 0), App.Vector(0, 0, 1), 1.5),
    Part.Circle(App.Vector(961.9, 60, 0), App.Vector(0, 0, 1), 1.5),
    Part.Circle(App.Vector(961.9, 20, 0), App.Vector(0, 0, 1), 1.5),
], False)
sketch3.addConstraint([
    Sketcher.Constraint("Equal", 0, 1),
    Sketcher.Constraint("Equal", 1, 2),
    Sketcher.Constraint("Equal", 2, 3),
    Sketcher.Constraint("Equal", 3, 4),
    Sketcher.Constraint("Equal", 4, 5),
    Sketcher.Constraint("Equal", 5, 6),
    Sketcher.Constraint("Equal", 6, 7),
    Sketcher.Constraint("Equal", 7, 8),
    Sketcher.Constraint("Equal", 8, 9),
    Sketcher.Constraint("Equal", 9, 10),
    Sketcher.Constraint("Equal", 10, 11),
    Sketcher.Constraint("Equal", 11, 12),
    Sketcher.Constraint("Equal", 12, 13),
    Sketcher.Constraint("Equal", 13, 14),
    Sketcher.Constraint("Equal", 14, 15),
    Sketcher.Constraint("Equal", 15, 16),
    Sketcher.Constraint("Equal", 16, 17),
    Sketcher.Constraint("Equal", 17, 18),
    Sketcher.Constraint("Equal", 18, 19),
    Sketcher.Constraint("Equal", 19, 20),
    Sketcher.Constraint("Equal", 20, 21),
    Sketcher.Constraint("Equal", 21, 22),
    Sketcher.Constraint("Equal", 22, 23),
    Sketcher.Constraint("Equal", 23, 24),
    Sketcher.Constraint("Equal", 24, 25),
    Sketcher.Constraint("Equal", 25, 26),
    Sketcher.Constraint("Equal", 26, 27),
    Sketcher.Constraint("Equal", 27, 28),
    Sketcher.Constraint("Equal", 28, 29),
    Sketcher.Constraint("Equal", 29, 30),
    Sketcher.Constraint("Equal", 30, 31),
    Sketcher.Constraint("Equal", 31, 32),
    Sketcher.Constraint("Equal", 32, 33),
    Sketcher.Constraint("Equal", 33, 34),
    Sketcher.Constraint("Equal", 34, 35),
    Sketcher.Constraint("Equal", 35, 36),
    Sketcher.Constraint("Equal", 36, 37),
    Sketcher.Constraint("Equal", 37, 38),
    Sketcher.Constraint("Equal", 38, 39),
    Sketcher.Constraint("Equal", 39, 40),
    Sketcher.Constraint("Equal", 40, 41),
    Sketcher.Constraint("Equal", 41, 42),
    Sketcher.Constraint("Equal", 42, 43),
    Sketcher.Constraint("Equal", 43, 44),
    Sketcher.Constraint("Equal", 44, 45),
    Sketcher.Constraint("Equal", 45, 46),
    Sketcher.Constraint("Equal", 46, 47),
    Sketcher.Constraint("Horizontal", 0, 3, 1, 3),
    Sketcher.Constraint("Horizontal", 2, 3, 3, 3),
    Sketcher.Constraint("Horizontal", 1, 3, 4, 3),
    Sketcher.Constraint("Horizontal", 3, 3, 5, 3),
    Sketcher.Constraint("Horizontal", 5, 3, 6, 3),
    Sketcher.Constraint("Horizontal", 4, 3, 7, 3),
    Sketcher.Constraint("Horizontal", 7, 3, 8, 3),
    Sketcher.Constraint("Horizontal", 6, 3, 9, 3),
    Sketcher.Constraint("Horizontal", 9, 3, 10, 3),
    Sketcher.Constraint("Horizontal", 8, 3, 11, 3),
    Sketcher.Constraint("Horizontal", 11, 3, 12, 3),
    Sketcher.Constraint("Horizontal", 10, 3, 13, 3),
    Sketcher.Constraint("Horizontal", 13, 3, 14, 3),
    Sketcher.Constraint("Horizontal", 12, 3, 15, 3),
    Sketcher.Constraint("Horizontal", 15, 3, 16, 3),
    Sketcher.Constraint("Horizontal", 14, 3, 17, 3),
    Sketcher.Constraint("Horizontal", 17, 3, 18, 3),
    Sketcher.Constraint("Horizontal", 16, 3, 19, 3),
    Sketcher.Constraint("Horizontal", 19, 3, 20, 3),
    Sketcher.Constraint("Horizontal", 18, 3, 21, 3),
    Sketcher.Constraint("Horizontal", 21, 3, 22, 3),
    Sketcher.Constraint("Horizontal", 20, 3, 23, 3),
    Sketcher.Constraint("Horizontal", 23, 3, 24, 3),
    Sketcher.Constraint("Horizontal", 22, 3, 25, 3),
    Sketcher.Constraint("Horizontal", 25, 3, 26, 3),
    Sketcher.Constraint("Horizontal", 24, 3, 27, 3),
    Sketcher.Constraint("Horizontal", 27, 3, 28, 3),
    Sketcher.Constraint("Horizontal", 26, 3, 29, 3),
    Sketcher.Constraint("Horizontal", 29, 3, 30, 3),
    Sketcher.Constraint("Horizontal", 28, 3, 31, 3),
    Sketcher.Constraint("Horizontal", 31, 3, 32, 3),
    Sketcher.Constraint("Horizontal", 30, 3, 33, 3),
    Sketcher.Constraint("Horizontal", 33, 3, 34, 3),
    Sketcher.Constraint("Horizontal", 32, 3, 35, 3),
    Sketcher.Constraint("Horizontal", 35, 3, 36, 3),
    Sketcher.Constraint("Horizontal", 34, 3, 37, 3),
    Sketcher.Constraint("Horizontal", 37, 3, 38, 3),
    Sketcher.Constraint("Horizontal", 36, 3, 39, 3),
    Sketcher.Constraint("Horizontal", 39, 3, 40, 3),
    Sketcher.Constraint("Horizontal", 38, 3, 41, 3),
    Sketcher.Constraint("Horizontal", 41, 3, 42, 3),
    Sketcher.Constraint("Horizontal", 40, 3, 43, 3),
    Sketcher.Constraint("Horizontal", 43, 3, 44, 3),
    Sketcher.Constraint("Horizontal", 42, 3, 45, 3),
    Sketcher.Constraint("Horizontal", 45, 3, 46, 3),
    Sketcher.Constraint("Horizontal", 44, 3, 47, 3),
    Sketcher.Constraint("Vertical", 0, 3, 2, 3),
    Sketcher.Constraint("Vertical", 1, 3, 3, 3),
    Sketcher.Constraint("Vertical", 4, 3, 5, 3),
    Sketcher.Constraint("Vertical", 6, 3, 7, 3),
    Sketcher.Constraint("Vertical", 8, 3, 9, 3),
    Sketcher.Constraint("Vertical", 10, 3, 11, 3),
    Sketcher.Constraint("Vertical", 12, 3, 13, 3),
    Sketcher.Constraint("Vertical", 14, 3, 15, 3),
    Sketcher.Constraint("Vertical", 16, 3, 17, 3),
    Sketcher.Constraint("Vertical", 18, 3, 19, 3),
    Sketcher.Constraint("Vertical", 20, 3, 21, 3),
    Sketcher.Constraint("Vertical", 22, 3, 23, 3),
    Sketcher.Constraint("Vertical", 24, 3, 25, 3),
    Sketcher.Constraint("Vertical", 26, 3, 27, 3),
    Sketcher.Constraint("Vertical", 28, 3, 29, 3),
    Sketcher.Constraint("Vertical", 30, 3, 31, 3),
    Sketcher.Constraint("Vertical", 32, 3, 33, 3),
    Sketcher.Constraint("Vertical", 34, 3, 35, 3),
    Sketcher.Constraint("Vertical", 36, 3, 37, 3),
    Sketcher.Constraint("Vertical", 38, 3, 39, 3),
    Sketcher.Constraint("Vertical", 40, 3, 41, 3),
    Sketcher.Constraint("Vertical", 42, 3, 43, 3),
    Sketcher.Constraint("Vertical", 44, 3, 45, 3),
    Sketcher.Constraint("Vertical", 46, 3, 47, 3),
    Sketcher.Constraint("Diameter", 0, 3.0),
    Sketcher.Constraint("DistanceY", -1, 1, 0, 3, 20.0),
    Sketcher.Constraint("DistanceY", -1, 1, 2, 3, 60.0),
    Sketcher.Constraint("DistanceX", 0, 3, 1, 3, 40.0),
    Sketcher.Constraint("DistanceX", 5, 3, 6, 3, 40.0),
    Sketcher.Constraint("DistanceX", 9, 3, 10, 3, 40.0),
    Sketcher.Constraint("DistanceX", 13, 3, 14, 3, 40.0),
    Sketcher.Constraint("DistanceX", 17, 3, 18, 3, 40.0),
    Sketcher.Constraint("DistanceX", 21, 3, 22, 3, 40.0),
    Sketcher.Constraint("DistanceX", 25, 3, 26, 3, 40.0),
    Sketcher.Constraint("DistanceX", 29, 3, 30, 3, 40.0),
    Sketcher.Constraint("DistanceX", 33, 3, 34, 3, 40.0),
    Sketcher.Constraint("DistanceX", 37, 3, 38, 3, 40.0),
    Sketcher.Constraint("DistanceX", 41, 3, 42, 3, 40.0),
    Sketcher.Constraint("DistanceX", 45, 3, 46, 3, 40.0),
    Sketcher.Constraint("DistanceX", -1, 1, 0, 3, 35.3),
    Sketcher.Constraint("DistanceX", -1, 1, 4, 3, 115.9),
    Sketcher.Constraint("DistanceX", -1, 1, 8, 3, 196.5),
    Sketcher.Constraint("DistanceX", -1, 1, 12, 3, 277.1),
    Sketcher.Constraint("DistanceX", -1, 1, 16, 3, 357.7),
    Sketcher.Constraint("DistanceX", -1, 1, 20, 3, 438.3),
    Sketcher.Constraint("DistanceX", -1, 1, 24, 3, 518.9),
    Sketcher.Constraint("DistanceX", -1, 1, 28, 3, 599.5),
    Sketcher.Constraint("DistanceX", -1, 1, 32, 3, 680.1),
    Sketcher.Constraint("DistanceX", -1, 1, 36, 3, 760.7),
    Sketcher.Constraint("DistanceX", -1, 1, 40, 3, 841.3),
    Sketcher.Constraint("DistanceX", -1, 1, 44, 3, 921.9),
])
pocket1 = body.newObject("PartDesign::Pocket", "Pocket")
pocket1.Profile = sketch3
pocket1.Type = "ThroughAll"

doc.recompute()
